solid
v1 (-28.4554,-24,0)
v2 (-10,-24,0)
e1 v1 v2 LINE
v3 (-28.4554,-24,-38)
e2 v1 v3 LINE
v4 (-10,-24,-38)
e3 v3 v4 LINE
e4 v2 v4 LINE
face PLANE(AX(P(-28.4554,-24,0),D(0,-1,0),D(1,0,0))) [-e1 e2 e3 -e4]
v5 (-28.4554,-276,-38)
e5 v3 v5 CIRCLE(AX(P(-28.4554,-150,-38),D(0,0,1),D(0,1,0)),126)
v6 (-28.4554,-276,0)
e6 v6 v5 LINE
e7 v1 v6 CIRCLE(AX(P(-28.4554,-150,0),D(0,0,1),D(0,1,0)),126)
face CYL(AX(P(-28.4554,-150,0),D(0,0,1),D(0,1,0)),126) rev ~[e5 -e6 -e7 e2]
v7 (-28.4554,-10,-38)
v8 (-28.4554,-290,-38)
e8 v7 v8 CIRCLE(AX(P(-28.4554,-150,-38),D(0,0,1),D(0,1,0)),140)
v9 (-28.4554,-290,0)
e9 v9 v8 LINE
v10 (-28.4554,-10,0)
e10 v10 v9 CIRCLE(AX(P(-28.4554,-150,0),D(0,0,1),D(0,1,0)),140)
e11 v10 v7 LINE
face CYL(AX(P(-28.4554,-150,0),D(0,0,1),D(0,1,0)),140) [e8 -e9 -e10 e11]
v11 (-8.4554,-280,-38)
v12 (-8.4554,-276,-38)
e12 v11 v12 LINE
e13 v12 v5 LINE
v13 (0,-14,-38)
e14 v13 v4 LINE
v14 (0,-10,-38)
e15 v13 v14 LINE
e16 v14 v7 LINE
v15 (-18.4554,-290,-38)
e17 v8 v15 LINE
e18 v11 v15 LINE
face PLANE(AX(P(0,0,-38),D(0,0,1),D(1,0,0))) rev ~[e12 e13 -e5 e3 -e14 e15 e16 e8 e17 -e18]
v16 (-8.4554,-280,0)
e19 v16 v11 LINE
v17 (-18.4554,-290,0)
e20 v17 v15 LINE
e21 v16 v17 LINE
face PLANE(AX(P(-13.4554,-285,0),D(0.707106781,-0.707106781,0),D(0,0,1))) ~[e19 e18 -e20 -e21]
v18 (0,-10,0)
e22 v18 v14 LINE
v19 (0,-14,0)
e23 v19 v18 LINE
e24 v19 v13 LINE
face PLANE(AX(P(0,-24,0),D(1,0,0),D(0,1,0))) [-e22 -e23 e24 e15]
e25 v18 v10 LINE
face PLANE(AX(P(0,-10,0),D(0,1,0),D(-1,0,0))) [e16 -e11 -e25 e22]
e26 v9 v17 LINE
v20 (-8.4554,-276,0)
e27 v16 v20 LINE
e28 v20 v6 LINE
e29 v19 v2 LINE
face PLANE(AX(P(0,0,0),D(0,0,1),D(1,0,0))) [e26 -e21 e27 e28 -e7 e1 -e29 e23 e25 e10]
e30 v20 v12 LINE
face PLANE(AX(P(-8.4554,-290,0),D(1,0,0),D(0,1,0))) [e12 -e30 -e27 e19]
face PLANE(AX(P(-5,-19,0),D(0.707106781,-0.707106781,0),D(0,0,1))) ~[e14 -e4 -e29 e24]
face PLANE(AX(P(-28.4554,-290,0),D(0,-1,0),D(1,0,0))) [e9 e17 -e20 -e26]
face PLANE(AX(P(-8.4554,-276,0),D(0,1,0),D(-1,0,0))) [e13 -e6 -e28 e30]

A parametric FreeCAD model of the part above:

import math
import FreeCAD as App
import Part
import Sketcher
from FreeCAD import Vector


def edges_at(feature, points):
    """Names of the edges that pass closest to the given points."""
    edges = feature.Shape.Edges
    near = lambda p: min(range(len(edges)), key=lambda i: edges[i].distToShape(Part.Vertex(*p))[0])
    return sorted({f"Edge{near(p) + 1}" for p in points})

doc = App.newDocument("Part")
params = doc.addObject("Spreadsheet::Sheet", "Params")
for row, (alias, value) in enumerate([
    ("sketch1_width", "20 mm"),
    ("sketch1_height", "14 mm"),
    ("sketch1_radius", "140 mm"),
    ("pad1_length", "38 mm"),
    ("chamfer_size", "10 mm"),
], start=1):
    params.set(f"A{row}", alias)
    params.set(f"B{row}", "=" + value)
    params.setAlias(f"B{row}", alias)

body = doc.addObject("PartDesign::Body", "Body")

sketch1 = doc.addObject("Sketcher::SketchObject", "Sketch")
body.addObject(sketch1)
sketch1.AttachmentSupport = (doc.XY_Plane, [""])
sketch1.MapMode = "FlatFace"
sketch1.addGeometry([
    Part.LineSegment(Vector(0, -24, 0), Vector(0, -10, 0)),
    Part.LineSegment(Vector(0, -10, 0), Vector(-28, -10, 0)),
    Part.ArcOfCircle(Part.Circle(Vector(-28, -150, 0), Vector(0, 0, 1), 140), math.radians(90), math.radians(270)),
    Part.LineSegment(Vector(-28, -290, 0), Vector(-8, -290, 0)),
    Part.LineSegment(Vector(-8, -290, 0), Vector(-8, -276, 0)),
    Part.LineSegment(Vector(-8, -276, 0), Vector(-28, -276, 0)),
    Part.ArcOfCircle(Part.Circle(Vector(-28, -150, 0), Vector(0, 0, 1), 126), math.radians(90), math.radians(270)),
    Part.LineSegment(Vector(-28, -24, 0), Vector(0, -24, 0)),
], False)
sketch1.addConstraint([
    Sketcher.Constraint("Coincident", 0, 2, 1, 1),
    Sketcher.Constraint("Tangent", 1, 2, 2, 1),
    Sketcher.Constraint("Tangent", 2, 2, 3, 1),
    Sketcher.Constraint("Coincident", 3, 2, 4, 1),
    Sketcher.Constraint("Coincident", 4, 2, 5, 1),
    Sketcher.Constraint("Tangent", 5, 2, 6, 2),
    Sketcher.Constraint("Tangent", 6, 1, 7, 1),
    Sketcher.Constraint("Coincident", 7, 2, 0, 1),
    Sketcher.Constraint("Vertical", 0),
    Sketcher.Constraint("Horizontal", 1),
    Sketcher.Constraint("Horizontal", 3),
    Sketcher.Constraint("Vertical", 4),
    Sketcher.Constraint("Horizontal", 5),
    Sketcher.Constraint("Horizontal", 7),
    Sketcher.Constraint("Coincident", 6, 3, 2, 3),
    Sketcher.Constraint("PointOnObject", 0, 2, -2),
    Sketcher.Constraint("DistanceX", 3, 1, 3, 2, 20.0),
    Sketcher.Constraint("DistanceY", 0, 1, 0, 2, 14.0),
    Sketcher.Constraint("Radius", 2, 140.0),
    Sketcher.Constraint("DistanceY", 2, 3, -1, 1, 150.0),
    Sketcher.Constraint("DistanceX", 1, 2, 1, 1, 28.4554),
])
sketch1.setExpression("Constraints[16]", "Params.sketch1_width")
sketch1.setExpression("Constraints[17]", "Params.sketch1_height")
sketch1.setExpression("Constraints[18]", "Params.sketch1_radius")
pad1 = doc.addObject("PartDesign::Pad", "Pad")
body.addObject(pad1)
pad1.Profile = sketch1
pad1.setExpression("Length", "Params.pad1_length")
pad1.Reversed = True
doc.recompute()

chamfer = doc.addObject("PartDesign::Chamfer", "Chamfer")
body.addObject(chamfer)
chamfer.Base = (pad1, edges_at(pad1, [(0, -24, -19), (-8.455, -290, -19)]))
chamfer.setExpression("Size", "Params.chamfer_size")

doc.recompute()
